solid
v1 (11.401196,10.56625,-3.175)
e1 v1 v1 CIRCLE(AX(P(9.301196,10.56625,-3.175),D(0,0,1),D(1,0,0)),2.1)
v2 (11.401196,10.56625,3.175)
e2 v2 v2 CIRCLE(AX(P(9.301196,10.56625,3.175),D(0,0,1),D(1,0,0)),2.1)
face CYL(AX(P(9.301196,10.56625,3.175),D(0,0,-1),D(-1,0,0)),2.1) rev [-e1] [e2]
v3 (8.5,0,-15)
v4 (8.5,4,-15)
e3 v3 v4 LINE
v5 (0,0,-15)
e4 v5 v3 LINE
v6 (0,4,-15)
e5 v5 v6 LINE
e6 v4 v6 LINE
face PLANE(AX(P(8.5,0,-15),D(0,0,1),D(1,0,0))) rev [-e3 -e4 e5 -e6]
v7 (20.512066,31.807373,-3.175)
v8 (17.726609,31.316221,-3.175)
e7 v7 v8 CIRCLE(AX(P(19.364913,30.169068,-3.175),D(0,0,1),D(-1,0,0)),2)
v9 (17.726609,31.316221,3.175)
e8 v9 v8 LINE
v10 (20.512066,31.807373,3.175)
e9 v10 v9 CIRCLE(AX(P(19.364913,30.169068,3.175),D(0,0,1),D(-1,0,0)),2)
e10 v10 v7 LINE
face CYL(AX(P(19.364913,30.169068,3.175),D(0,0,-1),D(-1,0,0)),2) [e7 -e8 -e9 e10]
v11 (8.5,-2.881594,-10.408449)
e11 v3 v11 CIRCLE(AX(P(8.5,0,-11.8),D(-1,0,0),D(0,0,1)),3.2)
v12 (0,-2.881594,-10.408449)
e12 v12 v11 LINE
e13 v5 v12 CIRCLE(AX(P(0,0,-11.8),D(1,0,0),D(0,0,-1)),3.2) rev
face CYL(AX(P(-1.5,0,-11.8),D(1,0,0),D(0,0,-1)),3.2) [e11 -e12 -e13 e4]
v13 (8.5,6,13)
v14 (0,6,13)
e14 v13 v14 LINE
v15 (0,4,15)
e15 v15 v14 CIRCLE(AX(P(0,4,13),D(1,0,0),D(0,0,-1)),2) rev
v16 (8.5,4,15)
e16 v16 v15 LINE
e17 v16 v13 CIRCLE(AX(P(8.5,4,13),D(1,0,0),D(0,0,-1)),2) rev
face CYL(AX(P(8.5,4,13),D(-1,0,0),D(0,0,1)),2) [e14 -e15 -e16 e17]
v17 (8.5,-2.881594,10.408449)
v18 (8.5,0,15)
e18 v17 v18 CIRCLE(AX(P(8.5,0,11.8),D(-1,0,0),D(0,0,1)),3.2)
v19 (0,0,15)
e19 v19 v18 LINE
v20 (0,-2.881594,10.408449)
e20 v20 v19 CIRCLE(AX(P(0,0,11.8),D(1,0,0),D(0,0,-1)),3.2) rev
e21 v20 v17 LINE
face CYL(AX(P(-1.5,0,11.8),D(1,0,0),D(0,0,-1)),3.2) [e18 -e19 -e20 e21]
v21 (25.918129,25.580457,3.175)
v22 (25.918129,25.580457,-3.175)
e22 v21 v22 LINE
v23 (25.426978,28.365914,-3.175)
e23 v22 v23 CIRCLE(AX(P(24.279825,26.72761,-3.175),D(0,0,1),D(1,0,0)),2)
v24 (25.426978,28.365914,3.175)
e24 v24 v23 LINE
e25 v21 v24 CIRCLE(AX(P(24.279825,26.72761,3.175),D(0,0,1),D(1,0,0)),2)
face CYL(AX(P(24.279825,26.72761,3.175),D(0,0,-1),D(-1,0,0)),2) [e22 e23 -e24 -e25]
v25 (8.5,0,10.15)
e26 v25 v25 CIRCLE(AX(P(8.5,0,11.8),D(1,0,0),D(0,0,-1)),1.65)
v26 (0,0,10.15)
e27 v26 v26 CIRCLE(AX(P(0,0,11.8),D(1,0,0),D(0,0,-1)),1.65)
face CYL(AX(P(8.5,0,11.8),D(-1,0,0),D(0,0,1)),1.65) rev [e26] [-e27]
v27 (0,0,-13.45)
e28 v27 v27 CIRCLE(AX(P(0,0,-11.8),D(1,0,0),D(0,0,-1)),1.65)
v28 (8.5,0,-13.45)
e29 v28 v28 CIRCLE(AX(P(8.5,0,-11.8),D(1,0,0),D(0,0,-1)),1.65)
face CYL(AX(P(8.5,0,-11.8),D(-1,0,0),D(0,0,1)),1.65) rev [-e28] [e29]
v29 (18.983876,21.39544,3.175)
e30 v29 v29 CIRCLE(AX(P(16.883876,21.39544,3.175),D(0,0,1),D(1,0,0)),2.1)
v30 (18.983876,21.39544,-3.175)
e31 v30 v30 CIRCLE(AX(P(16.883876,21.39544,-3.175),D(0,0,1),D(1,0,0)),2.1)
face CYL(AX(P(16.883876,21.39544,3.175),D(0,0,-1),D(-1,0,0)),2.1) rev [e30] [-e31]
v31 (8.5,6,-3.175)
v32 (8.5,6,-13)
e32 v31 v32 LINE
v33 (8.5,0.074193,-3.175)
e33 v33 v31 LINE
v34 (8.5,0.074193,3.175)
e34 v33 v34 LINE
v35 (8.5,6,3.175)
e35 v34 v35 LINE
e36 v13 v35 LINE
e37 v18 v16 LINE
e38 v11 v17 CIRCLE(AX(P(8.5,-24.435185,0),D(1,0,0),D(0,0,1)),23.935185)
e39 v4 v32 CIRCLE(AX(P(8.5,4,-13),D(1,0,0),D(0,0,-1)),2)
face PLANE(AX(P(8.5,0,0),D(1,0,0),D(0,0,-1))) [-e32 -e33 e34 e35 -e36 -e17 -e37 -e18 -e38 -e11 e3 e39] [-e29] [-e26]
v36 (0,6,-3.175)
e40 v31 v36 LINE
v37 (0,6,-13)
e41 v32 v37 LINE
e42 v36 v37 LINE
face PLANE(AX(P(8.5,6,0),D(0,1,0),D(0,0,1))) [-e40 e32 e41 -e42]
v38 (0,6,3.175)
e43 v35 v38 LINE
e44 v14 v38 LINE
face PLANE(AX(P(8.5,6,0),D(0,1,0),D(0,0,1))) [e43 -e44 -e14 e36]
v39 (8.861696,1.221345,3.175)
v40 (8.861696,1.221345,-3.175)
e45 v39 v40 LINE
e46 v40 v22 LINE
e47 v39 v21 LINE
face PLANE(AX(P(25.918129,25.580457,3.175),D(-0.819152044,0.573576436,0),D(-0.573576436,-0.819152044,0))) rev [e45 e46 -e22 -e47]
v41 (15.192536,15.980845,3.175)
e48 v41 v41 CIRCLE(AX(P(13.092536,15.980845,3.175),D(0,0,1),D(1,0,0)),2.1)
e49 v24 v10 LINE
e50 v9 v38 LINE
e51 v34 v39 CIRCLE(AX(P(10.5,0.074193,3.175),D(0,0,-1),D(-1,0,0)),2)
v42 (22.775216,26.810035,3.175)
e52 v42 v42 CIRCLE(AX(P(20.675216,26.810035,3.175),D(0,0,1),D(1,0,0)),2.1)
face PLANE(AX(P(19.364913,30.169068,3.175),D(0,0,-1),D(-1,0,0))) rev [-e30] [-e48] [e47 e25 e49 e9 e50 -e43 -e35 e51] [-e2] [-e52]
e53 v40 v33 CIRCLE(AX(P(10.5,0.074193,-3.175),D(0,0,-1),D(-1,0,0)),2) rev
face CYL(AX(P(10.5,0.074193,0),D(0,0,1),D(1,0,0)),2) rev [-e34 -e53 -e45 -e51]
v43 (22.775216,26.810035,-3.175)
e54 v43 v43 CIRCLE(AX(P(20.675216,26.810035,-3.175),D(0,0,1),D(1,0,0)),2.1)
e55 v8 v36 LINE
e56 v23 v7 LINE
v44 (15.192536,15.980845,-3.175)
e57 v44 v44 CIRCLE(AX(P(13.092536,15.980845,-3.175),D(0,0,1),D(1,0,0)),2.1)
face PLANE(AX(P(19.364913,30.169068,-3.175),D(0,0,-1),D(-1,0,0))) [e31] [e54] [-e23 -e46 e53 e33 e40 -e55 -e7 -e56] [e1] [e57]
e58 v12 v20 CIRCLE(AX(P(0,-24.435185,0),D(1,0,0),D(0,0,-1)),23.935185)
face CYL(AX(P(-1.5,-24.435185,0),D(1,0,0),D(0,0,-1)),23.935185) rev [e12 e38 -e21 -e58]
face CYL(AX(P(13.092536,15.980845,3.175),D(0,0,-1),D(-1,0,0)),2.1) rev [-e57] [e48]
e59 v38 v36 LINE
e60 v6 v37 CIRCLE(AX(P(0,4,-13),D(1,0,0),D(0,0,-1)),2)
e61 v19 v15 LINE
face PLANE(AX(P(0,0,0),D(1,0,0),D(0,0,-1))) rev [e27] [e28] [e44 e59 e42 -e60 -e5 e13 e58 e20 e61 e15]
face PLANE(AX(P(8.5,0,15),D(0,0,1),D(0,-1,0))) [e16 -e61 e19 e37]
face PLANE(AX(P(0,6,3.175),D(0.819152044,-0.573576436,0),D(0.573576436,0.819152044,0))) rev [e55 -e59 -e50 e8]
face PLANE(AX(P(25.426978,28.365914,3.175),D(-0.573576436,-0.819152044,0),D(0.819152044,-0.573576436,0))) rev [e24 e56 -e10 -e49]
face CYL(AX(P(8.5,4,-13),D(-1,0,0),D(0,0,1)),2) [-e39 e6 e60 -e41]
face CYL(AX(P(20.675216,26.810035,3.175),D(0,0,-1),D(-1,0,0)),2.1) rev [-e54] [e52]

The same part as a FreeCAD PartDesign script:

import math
import FreeCAD as App
import Part
import Sketcher

V = App.Vector
Q = App.Units.Quantity


def edges_at(feature, points):
    """Names of the edges that pass closest to the given points."""
    edges = feature.Shape.Edges
    near = lambda p: min(range(len(edges)), key=lambda i: edges[i].distToShape(Part.Vertex(*p))[0])
    return sorted({f"Edge{near(p) + 1}" for p in points})

doc = App.newDocument("Part")
params = doc.addObject("Spreadsheet::Sheet", "Params")
for row, (alias, value) in enumerate([
    ("sketch1_radius", "2 mm"),
    ("sketch1_diameter", "3.3 mm"),
    ("sketch1_width", "8 mm"),
    ("sketch1_height", "26 mm"),
    ("pad1_length", "8.5 mm"),
    ("sketch2_radius", "2 mm"),
    ("sketch2_diameter", "4.2 mm"),
    ("sketch2_length", "6 mm"),
    ("pad2_length", "6.35 mm"),
    ("fillet_radius", "2 mm"),
    ("sketch3_radius", "2 mm"),
    ("sketch3_radius2", "3.2 mm"),
    ("sketch3_width", "4 mm"),
    ("sketch3_height", "26 mm"),
    ("pocket1_length", "10 mm"),
], start=1):
    params.set(f"A{row}", alias)
    params.set(f"B{row}", "=" + value)
    params.setAlias(f"B{row}", alias)

body = doc.addObject("PartDesign::Body", "Body")

# Sketch on YZ plane
sketch1 = doc.addObject("Sketcher::SketchObject", "Sketch")
body.addObject(sketch1)
sketch1.AttachmentSupport = (doc.YZ_Plane, [""])
sketch1.MapMode = "FlatFace"
sketch1.addGeometry(Part.LineSegment(V(-6, 13, 0), V(-6, -13, 0)), False)
sketch1.addGeometry(Part.ArcOfCircle(Part.Circle(V(-4, -13, 0), V(0, 0, 1), 2), math.radians(-180), math.radians(-90)), False)
sketch1.addGeometry(Part.LineSegment(V(-4, -15, 0), V(4, -15, 0)), False)
sketch1.addGeometry(Part.ArcOfCircle(Part.Circle(V(4, -13, 0), V(0, 0, 1), 2), math.radians(-90), math.radians(0)), False)
sketch1.addGeometry(Part.LineSegment(V(6, -13, 0), V(6, 13, 0)), False)
sketch1.addGeometry(Part.ArcOfCircle(Part.Circle(V(4, 13, 0), V(0, 0, 1), 2), math.radians(0), math.radians(90)), False)
sketch1.addGeometry(Part.LineSegment(V(4, 15, 0), V(-4, 15, 0)), False)
sketch1.addGeometry(Part.ArcOfCircle(Part.Circle(V(-4, 13, 0), V(0, 0, 1), 2), math.radians(90), math.radians(180)), False)
sketch1.addGeometry(Part.Circle(V(0, 11.8, 0), V(0, 0, 1), 1.6), False)
sketch1.addGeometry(Part.Circle(V(0, -11.8, 0), V(0, 0, 1), 1.6), False)
sketch1.addConstraint(Sketcher.Constraint("Tangent", 0, 2, 1, 1))
sketch1.addConstraint(Sketcher.Constraint("Tangent", 1, 2, 2, 1))
sketch1.addConstraint(Sketcher.Constraint("Tangent", 2, 2, 3, 1))
sketch1.addConstraint(Sketcher.Constraint("Tangent", 3, 2, 4, 1))
sketch1.addConstraint(Sketcher.Constraint("Tangent", 4, 2, 5, 1))
sketch1.addConstraint(Sketcher.Constraint("Tangent", 5, 2, 6, 1))
sketch1.addConstraint(Sketcher.Constraint("Tangent", 6, 2, 7, 1))
sketch1.addConstraint(Sketcher.Constraint("Tangent", 7, 2, 0, 1))
sketch1.addConstraint(Sketcher.Constraint("Vertical", 0))
sketch1.addConstraint(Sketcher.Constraint("Horizontal", 2))
sketch1.addConstraint(Sketcher.Constraint("Vertical", 4))
sketch1.addConstraint(Sketcher.Constraint("Horizontal", 6))
sketch1.addConstraint(Sketcher.Constraint("Equal", 1, 3))
sketch1.addConstraint(Sketcher.Constraint("Equal", 3, 5))
sketch1.addConstraint(Sketcher.Constraint("Equal", 5, 7))
sketch1.addConstraint(Sketcher.Constraint("Equal", 8, 9))
sketch1.addConstraint(Sketcher.Constraint("Symmetric", 1, 3, 5, 3, -1, 1))
sketch1.addConstraint(Sketcher.Constraint("Symmetric", 8, 3, 9, 3, -1, 1))
sketch1.addConstraint(Sketcher.Constraint("PointOnObject", 8, 3, -2))
sketch1.addConstraint(Sketcher.Constraint("Radius", 1, Q("2 mm")))
sketch1.addConstraint(Sketcher.Constraint("Diameter", 8, Q("3.3 mm")))
sketch1.addConstraint(Sketcher.Constraint("DistanceX", 2, 1, 2, 2, Q("8 mm")))
sketch1.addConstraint(Sketcher.Constraint("DistanceY", 0, 2, 0, 1, Q("26 mm")))
sketch1.addConstraint(Sketcher.Constraint("DistanceY", -1, 1, 8, 3, Q("11.8 mm")))
sketch1.setExpression("Constraints[19]", "Params.sketch1_radius")
sketch1.setExpression("Constraints[20]", "Params.sketch1_diameter")
sketch1.setExpression("Constraints[21]", "Params.sketch1_width")
sketch1.setExpression("Constraints[22]", "Params.sketch1_height")
pad1 = doc.addObject("PartDesign::Pad", "Pad")
body.addObject(pad1)
pad1.Profile = sketch1
pad1.setExpression("Length", "Params.pad1_length")

# Sketch on XY plane
sketch2 = doc.addObject("Sketcher::SketchObject", "Sketch001")
body.addObject(sketch2)
sketch2.AttachmentSupport = (doc.XY_Plane, [""])
sketch2.MapMode = "FlatFace"
sketch2.addGeometry(Part.LineSegment(V(3.8, -6, 0), V(25.9, 25.6, 0)), False)
sketch2.addGeometry(Part.ArcOfCircle(Part.Circle(V(24.3, 26.7, 0), V(0, 0, 1), 2), math.radians(-35), math.radians(55)), False)
sketch2.addGeometry(Part.LineSegment(V(25.4, 28.4, 0), V(20.5, 31.8, 0)), False)
sketch2.addGeometry(Part.ArcOfCircle(Part.Circle(V(19.4, 30.2, 0), V(0, 0, 1), 2), math.radians(55), math.radians(145)), False)
sketch2.addGeometry(Part.LineSegment(V(17.7, 31.3, 0), V(0, 6, 0)), False)
sketch2.addGeometry(Part.LineSegment(V(0, 6, 0), V(0, -3.3, 0)), False)
sketch2.addGeometry(Part.LineSegment(V(0, -3.3, 0), V(3.8, -6, 0)), False)
sketch2.addGeometry(Part.Circle(V(9.3, 10.6, 0), V(0, 0, 1), 2.1), False)
sketch2.addGeometry(Part.Circle(V(13.1, 16, 0), V(0, 0, 1), 2.1), False)
sketch2.addGeometry(Part.Circle(V(16.9, 21.4, 0), V(0, 0, 1), 2.1), False)
sketch2.addGeometry(Part.Circle(V(20.7, 26.8, 0), V(0, 0, 1), 2.1), False)
sketch2.addConstraint(Sketcher.Constraint("Tangent", 0, 2, 1, 1))
sketch2.addConstraint(Sketcher.Constraint("Tangent", 1, 2, 2, 1))
sketch2.addConstraint(Sketcher.Constraint("Tangent", 2, 2, 3, 1))
sketch2.addConstraint(Sketcher.Constraint("Tangent", 3, 2, 4, 1))
sketch2.addConstraint(Sketcher.Constraint("Coincident", 4, 2, 5, 1))
sketch2.addConstraint(Sketcher.Constraint("Coincident", 5, 2, 6, 1))
sketch2.addConstraint(Sketcher.Constraint("Coincident", 6, 2, 0, 1))
sketch2.addConstraint(Sketcher.Constraint("Vertical", 5))
sketch2.addConstraint(Sketcher.Constraint("Equal", 1, 3))
sketch2.addConstraint(Sketcher.Constraint("Equal", 7, 8))
sketch2.addConstraint(Sketcher.Constraint("Equal", 8, 9))
sketch2.addConstraint(Sketcher.Constraint("Equal", 9, 10))
sketch2.addConstraint(Sketcher.Constraint("PointOnObject", 4, 2, -2))
sketch2.addConstraint(Sketcher.Constraint("Perpendicular", 0, 2))
sketch2.addConstraint(Sketcher.Constraint("Perpendicular", 2, 4))
sketch2.addConstraint(Sketcher.Constraint("Perpendicular", 4, 6))
sketch2.addConstraint(Sketcher.Constraint("Radius", 1, Q("2 mm")))
sketch2.addConstraint(Sketcher.Constraint("Diameter", 7, Q("4.2 mm")))
sketch2.addConstraint(Sketcher.Constraint("Angle", 0, Q("55 deg")))
sketch2.addConstraint(Sketcher.Constraint("Distance", 2, Q("6 mm")))
sketch2.addConstraint(Sketcher.Constraint("DistanceY", -1, 1, 4, 2, Q("6 mm")))
sketch2.addConstraint(Sketcher.Constraint("DistanceY", 6, 2, -1, 1, Q("6 mm")))
sketch2.addConstraint(Sketcher.Constraint("Distance", 4, Q("30.9054 mm")))
sketch2.addConstraint(Sketcher.Constraint("DistanceY", -1, 1, 7, 3, Q("10.56625 mm")))
sketch2.addConstraint(Sketcher.Constraint("DistanceY", -1, 1, 9, 3, Q("21.39544 mm")))
sketch2.addConstraint(Sketcher.Constraint("DistanceX", 7, 3, 1, 3, Q("14.97863 mm")))
sketch2.addConstraint(Sketcher.Constraint("DistanceX", 7, 3, 8, 3, Q("3.79134 mm")))
sketch2.addConstraint(Sketcher.Constraint("DistanceX", 8, 3, 9, 3, Q("3.79134 mm")))
sketch2.addConstraint(Sketcher.Constraint("DistanceX", 10, 3, 1, 3, Q("3.604609 mm")))
sketch2.addConstraint(Sketcher.Constraint("DistanceY", 8, 3, 10, 3, Q("10.82919 mm")))
sketch2.addConstraint(Sketcher.Constraint("DistanceY", 0, 2, 10, 3, Q("1.229578 mm")))
sketch2.setExpression("Constraints[16]", "Params.sketch2_radius")
sketch2.setExpression("Constraints[17]", "Params.sketch2_diameter")
sketch2.setExpression("Constraints[19]", "Params.sketch2_length")
pad2 = doc.addObject("PartDesign::Pad", "Pad001")
body.addObject(pad2)
pad2.Profile = sketch2
pad2.setExpression("Length", "Params.pad2_length")
pad2.Midplane = True
doc.recompute()

fillet = doc.addObject("PartDesign::Fillet", "Fillet")
body.addObject(fillet)
fillet.Base = (pad2, edges_at(pad2, [(8.5, 0.705, 0)]))
fillet.setExpression("Radius", "Params.fillet_radius")

# Sketch on YZ plane
sketch3 = doc.addObject("Sketcher::SketchObject", "Sketch002")
body.addObject(sketch3)
sketch3.AttachmentSupport = (doc.YZ_Plane, [""])
sketch3.MapMode = "FlatFace"
sketch3.AttachmentOffset = App.Placement(V(0, 0, -1.5), App.Rotation())
sketch3.addGeometry(Part.LineSegment(V(0, 15, 0), V(-4, 15, 0)), False)
sketch3.addGeometry(Part.ArcOfCircle(Part.Circle(V(-4, 13, 0), V(0, 0, 1), 2), math.radians(90), math.radians(180)), False)
sketch3.addGeometry(Part.LineSegment(V(-6, 13, 0), V(-6, -13, 0)), False)
sketch3.addGeometry(Part.ArcOfCircle(Part.Circle(V(-4, -13, 0), V(0, 0, 1), 2), math.radians(-180), math.radians(-90)), False)
sketch3.addGeometry(Part.LineSegment(V(-4, -15, 0), V(0, -15, 0)), False)
sketch3.addGeometry(Part.ArcOfCircle(Part.Circle(V(0, -11.8, 0), V(0, 0, 1), 3.2), math.radians(154), math.radians(270)), False)
sketch3.addGeometry(Part.ArcOfCircle(Part.Circle(V(-24.4, 0, 0), V(0, 0, 1), 23.9), math.radians(-26), math.radians(26)), False)
sketch3.addGeometry(Part.ArcOfCircle(Part.Circle(V(0, 11.8, 0), V(0, 0, 1), 3.2), math.radians(90), math.radians(206)), False)
sketch3.addConstraint(Sketcher.Constraint("Tangent", 0, 2, 1, 1))
sketch3.addConstraint(Sketcher.Constraint("Tangent", 1, 2, 2, 1))
sketch3.addConstraint(Sketcher.Constraint("Tangent", 2, 2, 3, 1))
sketch3.addConstraint(Sketcher.Constraint("Tangent", 3, 2, 4, 1))
sketch3.addConstraint(Sketcher.Constraint("Tangent", 4, 2, 5, 2))
sketch3.addConstraint(Sketcher.Constraint("Tangent", 5, 1, 6, 1))
sketch3.addConstraint(Sketcher.Constraint("Tangent", 6, 2, 7, 2))
sketch3.addConstraint(Sketcher.Constraint("Tangent", 7, 1, 0, 1))
sketch3.addConstraint(Sketcher.Constraint("Horizontal", 0))
sketch3.addConstraint(Sketcher.Constraint("Vertical", 2))
sketch3.addConstraint(Sketcher.Constraint("Horizontal", 4))
sketch3.addConstraint(Sketcher.Constraint("Equal", 1, 3))
sketch3.addConstraint(Sketcher.Constraint("Equal", 5, 7))
sketch3.addConstraint(Sketcher.Constraint("Symmetric", 5, 3, 7, 3, -1, 1))
sketch3.addConstraint(Sketcher.Constraint("PointOnObject", 5, 3, -2))
sketch3.addConstraint(Sketcher.Constraint("Radius", 1, Q("2 mm")))
sketch3.addConstraint(Sketcher.Constraint("Radius", 5, Q("3.2 mm")))
sketch3.addConstraint(Sketcher.Constraint("DistanceX", 0, 2, 0, 1, Q("4 mm")))
sketch3.addConstraint(Sketcher.Constraint("DistanceY", 2, 2, 2, 1, Q("26 mm")))
sketch3.addConstraint(Sketcher.Constraint("Radius", 6, Q("23.935185 mm")))
sketch3.setExpression("Constraints[15]", "Params.sketch3_radius")
sketch3.setExpression("Constraints[16]", "Params.sketch3_radius2")
sketch3.setExpression("Constraints[17]", "Params.sketch3_width")
sketch3.setExpression("Constraints[18]", "Params.sketch3_height")
pocket1 = doc.addObject("PartDesign::Pocket", "Pocket")
body.addObject(pocket1)
pocket1.Profile = sketch3
pocket1.setExpression("Length", "Params.pocket1_length")
pocket1.Reversed = True

doc.recompute()
